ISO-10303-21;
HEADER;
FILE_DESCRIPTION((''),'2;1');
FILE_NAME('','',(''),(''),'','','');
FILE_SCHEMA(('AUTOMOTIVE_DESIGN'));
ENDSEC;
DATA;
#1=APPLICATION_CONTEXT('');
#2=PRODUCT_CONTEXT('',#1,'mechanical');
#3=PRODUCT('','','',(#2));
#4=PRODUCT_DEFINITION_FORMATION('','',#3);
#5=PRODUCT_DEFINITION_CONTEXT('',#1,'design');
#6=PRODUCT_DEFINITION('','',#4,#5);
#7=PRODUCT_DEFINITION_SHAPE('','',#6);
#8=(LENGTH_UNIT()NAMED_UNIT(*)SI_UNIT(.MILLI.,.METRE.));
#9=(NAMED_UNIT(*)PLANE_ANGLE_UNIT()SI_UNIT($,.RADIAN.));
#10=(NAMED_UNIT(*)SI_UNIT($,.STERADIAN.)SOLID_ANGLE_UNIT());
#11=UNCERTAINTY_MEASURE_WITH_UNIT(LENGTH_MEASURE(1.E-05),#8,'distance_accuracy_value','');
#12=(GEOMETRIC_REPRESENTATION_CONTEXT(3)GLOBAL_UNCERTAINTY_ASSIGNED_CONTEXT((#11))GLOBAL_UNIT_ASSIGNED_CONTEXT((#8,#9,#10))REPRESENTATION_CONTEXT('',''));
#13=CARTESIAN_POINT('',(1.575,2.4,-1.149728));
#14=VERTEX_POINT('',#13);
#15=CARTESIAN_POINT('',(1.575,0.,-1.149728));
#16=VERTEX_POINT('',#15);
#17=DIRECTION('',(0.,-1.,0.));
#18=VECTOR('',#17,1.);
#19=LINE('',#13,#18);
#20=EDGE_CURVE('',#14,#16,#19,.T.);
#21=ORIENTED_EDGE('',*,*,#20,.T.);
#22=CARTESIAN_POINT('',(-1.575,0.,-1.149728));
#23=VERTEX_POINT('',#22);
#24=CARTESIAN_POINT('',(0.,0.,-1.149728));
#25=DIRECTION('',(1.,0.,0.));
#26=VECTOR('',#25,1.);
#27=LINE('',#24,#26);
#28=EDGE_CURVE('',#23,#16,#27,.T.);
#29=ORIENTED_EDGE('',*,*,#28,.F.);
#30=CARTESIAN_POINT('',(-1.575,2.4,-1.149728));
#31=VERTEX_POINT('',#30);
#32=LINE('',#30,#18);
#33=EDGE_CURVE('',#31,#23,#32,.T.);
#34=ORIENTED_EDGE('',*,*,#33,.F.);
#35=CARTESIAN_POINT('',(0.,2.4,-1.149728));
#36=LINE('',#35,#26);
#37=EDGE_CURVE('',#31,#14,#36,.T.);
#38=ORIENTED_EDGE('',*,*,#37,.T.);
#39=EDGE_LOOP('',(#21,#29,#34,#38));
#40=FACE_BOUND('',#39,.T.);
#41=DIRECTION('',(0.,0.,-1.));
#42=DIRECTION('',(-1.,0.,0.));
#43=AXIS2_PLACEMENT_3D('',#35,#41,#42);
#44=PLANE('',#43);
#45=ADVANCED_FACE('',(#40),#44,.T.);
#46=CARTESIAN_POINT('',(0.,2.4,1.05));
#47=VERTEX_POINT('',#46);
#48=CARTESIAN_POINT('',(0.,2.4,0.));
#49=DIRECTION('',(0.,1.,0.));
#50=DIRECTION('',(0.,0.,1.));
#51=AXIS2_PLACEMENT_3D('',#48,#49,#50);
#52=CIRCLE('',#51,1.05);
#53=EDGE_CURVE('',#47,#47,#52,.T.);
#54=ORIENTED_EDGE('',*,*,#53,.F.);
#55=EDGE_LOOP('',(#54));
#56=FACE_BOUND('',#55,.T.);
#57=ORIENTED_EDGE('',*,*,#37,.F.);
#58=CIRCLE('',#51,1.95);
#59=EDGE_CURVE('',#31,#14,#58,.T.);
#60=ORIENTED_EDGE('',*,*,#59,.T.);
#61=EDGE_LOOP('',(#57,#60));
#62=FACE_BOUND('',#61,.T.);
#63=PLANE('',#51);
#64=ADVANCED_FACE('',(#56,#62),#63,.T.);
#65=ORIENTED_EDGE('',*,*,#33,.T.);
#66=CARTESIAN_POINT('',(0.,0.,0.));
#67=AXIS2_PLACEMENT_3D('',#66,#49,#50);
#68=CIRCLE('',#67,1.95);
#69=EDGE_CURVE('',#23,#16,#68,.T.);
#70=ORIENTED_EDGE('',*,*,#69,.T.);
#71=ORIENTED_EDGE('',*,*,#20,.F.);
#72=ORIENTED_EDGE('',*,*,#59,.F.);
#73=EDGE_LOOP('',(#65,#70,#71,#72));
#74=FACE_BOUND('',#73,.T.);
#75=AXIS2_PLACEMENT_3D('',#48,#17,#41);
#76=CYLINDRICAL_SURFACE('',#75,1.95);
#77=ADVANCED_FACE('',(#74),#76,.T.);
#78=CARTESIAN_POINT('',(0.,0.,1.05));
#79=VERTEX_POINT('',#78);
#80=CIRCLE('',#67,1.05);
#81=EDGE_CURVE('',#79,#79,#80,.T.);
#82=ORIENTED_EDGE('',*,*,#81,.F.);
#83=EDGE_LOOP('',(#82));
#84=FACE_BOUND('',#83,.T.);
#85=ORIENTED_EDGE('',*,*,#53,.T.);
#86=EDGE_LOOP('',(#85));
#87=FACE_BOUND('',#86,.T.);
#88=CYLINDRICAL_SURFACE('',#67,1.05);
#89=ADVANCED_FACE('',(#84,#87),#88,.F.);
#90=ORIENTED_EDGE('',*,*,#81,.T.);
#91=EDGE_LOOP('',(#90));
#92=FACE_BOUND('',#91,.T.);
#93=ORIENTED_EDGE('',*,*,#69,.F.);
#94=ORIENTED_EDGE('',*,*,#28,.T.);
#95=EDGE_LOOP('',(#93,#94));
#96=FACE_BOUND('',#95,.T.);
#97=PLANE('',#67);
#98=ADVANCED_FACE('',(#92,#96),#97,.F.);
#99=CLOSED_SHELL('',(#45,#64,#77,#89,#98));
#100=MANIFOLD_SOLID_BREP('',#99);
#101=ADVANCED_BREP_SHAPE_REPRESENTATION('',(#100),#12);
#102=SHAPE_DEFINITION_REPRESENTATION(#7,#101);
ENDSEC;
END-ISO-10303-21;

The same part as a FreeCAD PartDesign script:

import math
import FreeCAD as App
import Part
import Sketcher

V = App.Vector

doc = App.newDocument("Part")
body = doc.addObject("PartDesign::Body", "Body")

sketch1 = body.newObject("Sketcher::SketchObject", "Sketch")
sketch1.AttachmentSupport = (doc.getObject("XZ_Plane"), [""])
sketch1.MapMode = "FlatFace"
sketch1.addGeometry(Part.LineSegment(V(1.6, -1.1, 0), V(-1.6, -1.1, 0)), False)
sketch1.addGeometry(Part.ArcOfCircle(Part.Circle(V(0, 0, 0), V(0, 0, 1), 1.9), math.radians(0), math.radians(216)), False)
sketch1.addGeometry(Part.ArcOfCircle(Part.Circle(V(0, 0, 0), V(0, 0, 1), 2), math.radians(-36), math.radians(0)), False)
sketch1.addConstraint(Sketcher.Constraint("Coincident", 0, 2, 1, 2))
sketch1.addConstraint(Sketcher.Constraint("Tangent", 1, 1, 2, 2))
sketch1.addConstraint(Sketcher.Constraint("Coincident", 2, 1, 0, 1))
sketch1.addConstraint(Sketcher.Constraint("Horizontal", 0))
sketch1.addConstraint(Sketcher.Constraint("Coincident", 1, 3, -1, 1))
sketch1.addConstraint(Sketcher.Constraint("Equal", 1, 2))
sketch1.addConstraint(Sketcher.Constraint("PointOnObject", 1, 1, -1))
sketch1.addConstraint(Sketcher.Constraint("Radius", 1, 1.95))
sketch1.addConstraint(Sketcher.Constraint("DistanceX", 0, 2, 0, 1, 3.15))
pad1 = body.newObject("PartDesign::Pad", "Pad")
pad1.Profile = sketch1
pad1.Length = 2.4
pad1.Reversed = True

sketch2 = body.newObject("Sketcher::SketchObject", "Sketch001")
sketch2.AttachmentSupport = (doc.getObject("XZ_Plane"), [""])
sketch2.MapMode = "FlatFace"
sketch2.AttachmentOffset = App.Placement(V(0, 0, -2.4), App.Rotation())
sketch2.addGeometry(Part.Circle(V(0, 0, 0), V(0, 0, 1), 1.1), False)
sketch2.addConstraint(Sketcher.Constraint("Coincident", 0, 3, -1, 1))
sketch2.addConstraint(Sketcher.Constraint("Diameter", 0, 2.1))
pocket1 = body.newObject("PartDesign::Pocket", "Pocket")
pocket1.Profile = sketch2
pocket1.Type = "ThroughAll"
pocket1.Reversed = True

doc.recompute()
